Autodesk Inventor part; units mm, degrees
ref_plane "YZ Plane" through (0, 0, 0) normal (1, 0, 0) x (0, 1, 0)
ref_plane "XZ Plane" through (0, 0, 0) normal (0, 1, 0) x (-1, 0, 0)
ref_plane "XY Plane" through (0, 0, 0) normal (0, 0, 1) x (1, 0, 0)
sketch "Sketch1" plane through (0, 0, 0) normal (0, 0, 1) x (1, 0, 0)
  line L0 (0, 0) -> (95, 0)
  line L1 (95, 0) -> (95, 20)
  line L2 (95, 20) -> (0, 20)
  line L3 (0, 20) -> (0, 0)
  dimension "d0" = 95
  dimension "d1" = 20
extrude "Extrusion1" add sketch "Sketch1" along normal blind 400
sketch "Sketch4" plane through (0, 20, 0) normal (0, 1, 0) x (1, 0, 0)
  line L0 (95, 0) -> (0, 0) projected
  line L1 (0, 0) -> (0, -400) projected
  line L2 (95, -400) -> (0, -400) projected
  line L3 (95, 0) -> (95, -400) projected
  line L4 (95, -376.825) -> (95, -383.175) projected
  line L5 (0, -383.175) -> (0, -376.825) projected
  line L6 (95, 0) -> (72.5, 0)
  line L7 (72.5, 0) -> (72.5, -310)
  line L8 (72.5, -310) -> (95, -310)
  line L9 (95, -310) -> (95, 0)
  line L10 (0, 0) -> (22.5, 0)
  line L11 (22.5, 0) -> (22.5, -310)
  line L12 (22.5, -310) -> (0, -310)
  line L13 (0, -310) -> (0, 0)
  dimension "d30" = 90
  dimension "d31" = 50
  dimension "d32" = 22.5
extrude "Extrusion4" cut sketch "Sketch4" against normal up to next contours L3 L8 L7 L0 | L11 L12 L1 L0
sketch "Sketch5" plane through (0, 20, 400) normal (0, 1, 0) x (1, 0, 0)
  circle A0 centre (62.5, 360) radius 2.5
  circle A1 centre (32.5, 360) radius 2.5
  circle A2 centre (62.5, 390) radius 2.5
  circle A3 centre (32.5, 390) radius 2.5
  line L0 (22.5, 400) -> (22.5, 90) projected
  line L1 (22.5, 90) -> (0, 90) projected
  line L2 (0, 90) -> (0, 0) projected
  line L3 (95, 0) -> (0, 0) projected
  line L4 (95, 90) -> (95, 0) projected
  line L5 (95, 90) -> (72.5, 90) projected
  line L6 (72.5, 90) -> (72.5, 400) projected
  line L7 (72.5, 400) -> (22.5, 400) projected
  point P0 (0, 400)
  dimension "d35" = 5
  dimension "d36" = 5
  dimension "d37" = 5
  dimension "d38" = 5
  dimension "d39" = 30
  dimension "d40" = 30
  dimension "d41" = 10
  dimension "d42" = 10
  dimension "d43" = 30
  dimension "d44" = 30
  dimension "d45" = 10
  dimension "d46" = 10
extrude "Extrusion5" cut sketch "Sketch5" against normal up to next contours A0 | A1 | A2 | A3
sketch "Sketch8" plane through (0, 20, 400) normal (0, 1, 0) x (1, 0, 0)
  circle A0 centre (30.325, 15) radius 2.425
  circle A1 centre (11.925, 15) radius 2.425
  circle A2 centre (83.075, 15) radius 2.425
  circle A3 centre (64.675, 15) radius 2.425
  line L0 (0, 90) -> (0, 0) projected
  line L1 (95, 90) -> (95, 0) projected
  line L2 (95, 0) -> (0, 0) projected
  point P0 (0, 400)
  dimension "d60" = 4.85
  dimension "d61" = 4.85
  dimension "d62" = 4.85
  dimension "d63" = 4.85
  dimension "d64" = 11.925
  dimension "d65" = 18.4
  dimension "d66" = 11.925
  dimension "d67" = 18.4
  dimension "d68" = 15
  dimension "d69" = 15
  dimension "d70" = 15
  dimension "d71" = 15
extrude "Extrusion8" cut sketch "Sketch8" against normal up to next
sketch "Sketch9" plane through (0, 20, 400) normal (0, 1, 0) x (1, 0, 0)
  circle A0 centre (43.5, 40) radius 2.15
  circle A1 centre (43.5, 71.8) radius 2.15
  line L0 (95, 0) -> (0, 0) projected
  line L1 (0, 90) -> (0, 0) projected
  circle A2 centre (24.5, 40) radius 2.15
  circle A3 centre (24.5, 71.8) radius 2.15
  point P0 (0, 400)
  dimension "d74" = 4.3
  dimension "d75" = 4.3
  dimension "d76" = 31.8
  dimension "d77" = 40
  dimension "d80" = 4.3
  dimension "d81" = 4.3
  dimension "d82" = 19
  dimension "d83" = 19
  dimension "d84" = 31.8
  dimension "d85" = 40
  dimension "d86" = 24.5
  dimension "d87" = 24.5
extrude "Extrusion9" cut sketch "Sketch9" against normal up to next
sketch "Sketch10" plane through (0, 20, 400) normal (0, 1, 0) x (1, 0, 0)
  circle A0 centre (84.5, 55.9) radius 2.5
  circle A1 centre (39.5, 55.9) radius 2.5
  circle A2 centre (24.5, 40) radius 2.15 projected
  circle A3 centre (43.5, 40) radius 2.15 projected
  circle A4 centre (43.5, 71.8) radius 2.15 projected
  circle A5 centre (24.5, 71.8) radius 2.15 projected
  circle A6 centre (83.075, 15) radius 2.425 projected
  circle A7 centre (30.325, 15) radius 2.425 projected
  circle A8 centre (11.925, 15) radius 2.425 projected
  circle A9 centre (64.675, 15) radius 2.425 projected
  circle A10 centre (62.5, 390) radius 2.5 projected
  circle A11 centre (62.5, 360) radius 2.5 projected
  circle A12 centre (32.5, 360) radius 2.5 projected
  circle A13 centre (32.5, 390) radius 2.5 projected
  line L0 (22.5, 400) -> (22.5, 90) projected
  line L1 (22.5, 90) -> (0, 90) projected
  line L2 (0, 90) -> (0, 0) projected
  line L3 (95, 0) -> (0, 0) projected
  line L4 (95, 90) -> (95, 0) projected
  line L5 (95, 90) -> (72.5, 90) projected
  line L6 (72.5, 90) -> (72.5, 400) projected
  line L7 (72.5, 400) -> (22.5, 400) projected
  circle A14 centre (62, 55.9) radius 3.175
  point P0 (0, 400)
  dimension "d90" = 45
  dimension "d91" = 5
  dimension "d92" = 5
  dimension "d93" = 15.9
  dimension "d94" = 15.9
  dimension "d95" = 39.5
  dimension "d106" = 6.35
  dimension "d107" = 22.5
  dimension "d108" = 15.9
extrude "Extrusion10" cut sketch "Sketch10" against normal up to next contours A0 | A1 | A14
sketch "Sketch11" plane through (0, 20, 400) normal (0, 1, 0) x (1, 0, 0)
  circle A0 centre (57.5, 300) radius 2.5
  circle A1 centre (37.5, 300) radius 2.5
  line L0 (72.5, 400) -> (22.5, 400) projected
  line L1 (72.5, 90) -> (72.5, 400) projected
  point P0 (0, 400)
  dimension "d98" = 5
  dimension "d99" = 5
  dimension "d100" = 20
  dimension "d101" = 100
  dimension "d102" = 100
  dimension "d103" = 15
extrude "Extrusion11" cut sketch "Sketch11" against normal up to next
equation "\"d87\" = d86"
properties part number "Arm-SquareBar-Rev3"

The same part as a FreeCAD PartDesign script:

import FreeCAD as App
import Part
import Sketcher
from FreeCAD import Vector


def add_polygon(sketch, points):
    """Adds a closed chain of lines whose ends are joined by coincident constraints."""
    first, n = sketch.GeometryCount, len(points)
    for a, b in zip(points, points[1:] + points[:1]):
        sketch.addGeometry(Part.LineSegment(App.Vector(*a, 0), App.Vector(*b, 0)), False)
    for i in range(n):
        sketch.addConstraint(Sketcher.Constraint("Coincident", first + i, 2, first + (i + 1) % n, 1))

doc = App.newDocument("Part")
body = doc.addObject("PartDesign::Body", "Body")

sketch1 = doc.addObject("Sketcher::SketchObject", "Sketch")
body.addObject(sketch1)
sketch1.AttachmentSupport = (doc.XY_Plane, [""])
sketch1.MapMode = "FlatFace"
add_polygon(sketch1, [(0, 20), (0, 0), (95, 0), (95, 20)])
sketch1.addConstraint([
    Sketcher.Constraint("Vertical", 0),
    Sketcher.Constraint("Horizontal", 1),
    Sketcher.Constraint("Vertical", 2),
    Sketcher.Constraint("Horizontal", 3),
    Sketcher.Constraint("Coincident", 0, 2, -1, 1),
    Sketcher.Constraint("DistanceX", 1, 1, 1, 2, 95.0),
    Sketcher.Constraint("DistanceY", 0, 2, 0, 1, 20.0),
])
pad1 = doc.addObject("PartDesign::Pad", "Pad")
body.addObject(pad1)
pad1.Profile = sketch1
pad1.Length = 400

sketch2 = doc.addObject("Sketcher::SketchObject", "Sketch001")
body.addObject(sketch2)
sketch2.AttachmentSupport = (doc.XZ_Plane, [""])
sketch2.MapMode = "FlatFace"
sketch2.AttachmentOffset = App.Placement(Vector(0, 0, -20), App.Rotation())
add_polygon(sketch2, [(95, 310), (95, 0), (72, 0), (72, 310)])
add_polygon(sketch2, [(22, 310), (22, 0), (0, 0), (0, 310)])
sketch2.addConstraint([
    Sketcher.Constraint("Vertical", 0),
    Sketcher.Constraint("Horizontal", 1),
    Sketcher.Constraint("Vertical", 2),
    Sketcher.Constraint("Horizontal", 3),
    Sketcher.Constraint("Vertical", 4),
    Sketcher.Constraint("Horizontal", 5),
    Sketcher.Constraint("Vertical", 6),
    Sketcher.Constraint("Horizontal", 7),
    Sketcher.Constraint("Coincident", 5, 2, -1, 1),
    Sketcher.Constraint("PointOnObject", 0, 2, -1),
    Sketcher.Constraint("Horizontal", 3, 2, 6, 2),
    Sketcher.Constraint("Equal", 3, 5),
    Sketcher.Constraint("DistanceX", 1, 2, 1, 1, 22.5),
    Sketcher.Constraint("DistanceX", 4, 2, 1, 2, 50.0),
    Sketcher.Constraint("DistanceY", 0, 2, 0, 1, 310.0),
])
pocket1 = doc.addObject("PartDesign::Pocket", "Pocket")
body.addObject(pocket1)
pocket1.Profile = sketch2
pocket1.Type = "UpToFirst"
pocket1.Reversed = True

sketch3 = doc.addObject("Sketcher::SketchObject", "Sketch002")
body.addObject(sketch3)
sketch3.AttachmentSupport = (doc.XZ_Plane, [""])
sketch3.MapMode = "FlatFace"
sketch3.AttachmentOffset = App.Placement(Vector(0, 0, -20), App.Rotation())
sketch3.addGeometry([
    Part.Circle(Vector(62.5, 40, 0), Vector(0, 0, 1), 2.5),
    Part.Circle(Vector(32.5, 40, 0), Vector(0, 0, 1), 2.5),
    Part.Circle(Vector(62.5, 10, 0), Vector(0, 0, 1), 2.5),
    Part.Circle(Vector(32.5, 10, 0), Vector(0, 0, 1), 2.5),
], False)
sketch3.addConstraint([
    Sketcher.Constraint("Equal", 0, 1),
    Sketcher.Constraint("Equal", 1, 2),
    Sketcher.Constraint("Equal", 2, 3),
    Sketcher.Constraint("Horizontal", 0, 3, 1, 3),
    Sketcher.Constraint("Horizontal", 2, 3, 3, 3),
    Sketcher.Constraint("Vertical", 0, 3, 2, 3),
    Sketcher.Constraint("Vertical", 1, 3, 3, 3),
    Sketcher.Constraint("Diameter", 0, 5.0),
    Sketcher.Constraint("DistanceY", -1, 1, 2, 3, 10.0),
    Sketcher.Constraint("DistanceX", 1, 3, 0, 3, 30.0),
    Sketcher.Constraint("DistanceY", 2, 3, 0, 3, 30.0),
    Sketcher.Constraint("DistanceX", -1, 1, 0, 3, 62.5),
])
pocket2 = doc.addObject("PartDesign::Pocket", "Pocket001")
body.addObject(pocket2)
pocket2.Profile = sketch3
pocket2.Type = "UpToFirst"
pocket2.Reversed = True

sketch4 = doc.addObject("Sketcher::SketchObject", "Sketch003")
body.addObject(sketch4)
sketch4.AttachmentSupport = (doc.XZ_Plane, [""])
sketch4.MapMode = "FlatFace"
sketch4.AttachmentOffset = App.Placement(Vector(0, 0, -20), App.Rotation())
sketch4.addGeometry([
    Part.Circle(Vector(30.3, 385, 0), Vector(0, 0, 1), 2.4),
    Part.Circle(Vector(11.9, 385, 0), Vector(0, 0, 1), 2.4),
    Part.Circle(Vector(83.1, 385, 0), Vector(0, 0, 1), 2.4),
    Part.Circle(Vector(64.7, 385, 0), Vector(0, 0, 1), 2.4),
], False)
sketch4.addConstraint([
    Sketcher.Constraint("Equal", 0, 1),
    Sketcher.Constraint("Equal", 1, 2),
    Sketcher.Constraint("Equal", 2, 3),
    Sketcher.Constraint("Horizontal", 0, 3, 1, 3),
    Sketcher.Constraint("Horizontal", 1, 3, 2, 3),
    Sketcher.Constraint("Horizontal", 2, 3, 3, 3),
    Sketcher.Constraint("Diameter", 0, 4.85),
    Sketcher.Constraint("DistanceX", 1, 3, 0, 3, 18.4),
    Sketcher.Constraint("DistanceX", 3, 3, 2, 3, 18.4),
    Sketcher.Constraint("DistanceY", -1, 1, 0, 3, 385.0),
    Sketcher.Constraint("DistanceX", -1, 1, 1, 3, 11.925),
    Sketcher.Constraint("DistanceX", 0, 3, 2, 3, 52.75),
])
pocket3 = doc.addObject("PartDesign::Pocket", "Pocket002")
body.addObject(pocket3)
pocket3.Profile = sketch4
pocket3.Type = "UpToFirst"
pocket3.Reversed = True

sketch5 = doc.addObject("Sketcher::SketchObject", "Sketch004")
body.addObject(sketch5)
sketch5.AttachmentSupport = (doc.XZ_Plane, [""])
sketch5.MapMode = "FlatFace"
sketch5.AttachmentOffset = App.Placement(Vector(0, 0, -20), App.Rotation())
sketch5.addGeometry([
    Part.Circle(Vector(43.5, 360, 0), Vector(0, 0, 1), 2.1),
    Part.Circle(Vector(43.5, 328.2, 0), Vector(0, 0, 1), 2.1),
    Part.Circle(Vector(24.5, 360, 0), Vector(0, 0, 1), 2.1),
    Part.Circle(Vector(24.5, 328.2, 0), Vector(0, 0, 1), 2.1),
], False)
sketch5.addConstraint([
    Sketcher.Constraint("Equal", 0, 1),
    Sketcher.Constraint("Equal", 1, 2),
    Sketcher.Constraint("Equal", 2, 3),
    Sketcher.Constraint("Horizontal", 0, 3, 2, 3),
    Sketcher.Constraint("Horizontal", 1, 3, 3, 3),
    Sketcher.Constraint("Vertical", 0, 3, 1, 3),
    Sketcher.Constraint("Vertical", 2, 3, 3, 3),
    Sketcher.Constraint("Diameter", 0, 4.3),
    Sketcher.Constraint("DistanceX", 2, 3, 0, 3, 19.0),
    Sketcher.Constraint("DistanceX", -1, 1, 2, 3, 24.5),
    Sketcher.Constraint("DistanceY", 1, 3, 0, 3, 31.8),
    Sketcher.Constraint("DistanceY", -1, 1, 0, 3, 360.0),
])
pocket4 = doc.addObject("PartDesign::Pocket", "Pocket003")
body.addObject(pocket4)
pocket4.Profile = sketch5
pocket4.Type = "UpToFirst"
pocket4.Reversed = True

sketch6 = doc.addObject("Sketcher::SketchObject", "Sketch005")
body.addObject(sketch6)
sketch6.AttachmentSupport = (doc.XZ_Plane, [""])
sketch6.MapMode = "FlatFace"
sketch6.AttachmentOffset = App.Placement(Vector(0, 0, -20), App.Rotation())
sketch6.addGeometry([
    Part.Circle(Vector(84.5, 344.1, 0), Vector(0, 0, 1), 2.5),
    Part.Circle(Vector(39.5, 344.1, 0), Vector(0, 0, 1), 2.5),
    Part.Circle(Vector(62, 344.1, 0), Vector(0, 0, 1), 3.2),
], False)
sketch6.addConstraint([
    Sketcher.Constraint("Equal", 0, 1),
    Sketcher.Constraint("Horizontal", 0, 3, 1, 3),
    Sketcher.Constraint("Horizontal", 1, 3, 2, 3),
    Sketcher.Constraint("Diameter", 0, 5.0),
    Sketcher.Constraint("Diameter", 2, 6.35),
    Sketcher.Constraint("DistanceX", 1, 3, 0, 3, 45.0),
    Sketcher.Constraint("DistanceX", -1, 1, 1, 3, 39.5),
    Sketcher.Constraint("DistanceX", 2, 3, 0, 3, 22.5),
    Sketcher.Constraint("DistanceY", -1, 1, 0, 3, 344.1),
])
pocket5 = doc.addObject("PartDesign::Pocket", "Pocket004")
body.addObject(pocket5)
pocket5.Profile = sketch6
pocket5.Type = "UpToFirst"
pocket5.Reversed = True

sketch7 = doc.addObject("Sketcher::SketchObject", "Sketch006")
body.addObject(sketch7)
sketch7.AttachmentSupport = (doc.XZ_Plane, [""])
sketch7.MapMode = "FlatFace"
sketch7.AttachmentOffset = App.Placement(Vector(0, 0, -20), App.Rotation())
sketch7.addGeometry([
    Part.Circle(Vector(57.5, 100, 0), Vector(0, 0, 1), 2.5),
    Part.Circle(Vector(37.5, 100, 0), Vector(0, 0, 1), 2.5),
], False)
sketch7.addConstraint([
    Sketcher.Constraint("Equal", 0, 1),
    Sketcher.Constraint("Horizontal", 0, 3, 1, 3),
    Sketcher.Constraint("Diameter", 0, 5.0),
    Sketcher.Constraint("DistanceY", -1, 1, 0, 3, 100.0),
    Sketcher.Constraint("DistanceX", 1, 3, 0, 3, 20.0),
    Sketcher.Constraint("DistanceX", -1, 1, 0, 3, 57.5),
])
pocket6 = doc.addObject("PartDesign::Pocket", "Pocket005")
body.addObject(pocket6)
pocket6.Profile = sketch7
pocket6.Type = "UpToFirst"
pocket6.Reversed = True

doc.recompute()
